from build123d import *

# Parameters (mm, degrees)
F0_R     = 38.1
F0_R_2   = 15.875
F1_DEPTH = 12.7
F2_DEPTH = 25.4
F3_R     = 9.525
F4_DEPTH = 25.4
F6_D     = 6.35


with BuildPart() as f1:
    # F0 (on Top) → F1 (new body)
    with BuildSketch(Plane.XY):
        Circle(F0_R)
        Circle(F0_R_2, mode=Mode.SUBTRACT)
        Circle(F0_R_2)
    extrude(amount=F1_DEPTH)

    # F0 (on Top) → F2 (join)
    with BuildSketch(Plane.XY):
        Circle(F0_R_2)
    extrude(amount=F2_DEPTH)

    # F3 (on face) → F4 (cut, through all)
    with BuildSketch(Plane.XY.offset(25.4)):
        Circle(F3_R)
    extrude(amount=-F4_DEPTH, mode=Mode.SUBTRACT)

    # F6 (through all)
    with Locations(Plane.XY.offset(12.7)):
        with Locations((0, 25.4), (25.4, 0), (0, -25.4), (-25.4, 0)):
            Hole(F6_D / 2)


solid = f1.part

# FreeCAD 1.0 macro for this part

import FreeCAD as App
import Part
import Sketcher
from FreeCAD import Vector
Q = App.Units.Quantity

doc = App.newDocument("Part")
body = doc.addObject("PartDesign::Body", "Body")

# Sketch on XY plane
sketch1 = body.newObject("Sketcher::SketchObject", "Sketch")
sketch1.AttachmentSupport = (doc.getObject("XY_Plane"), [""])
sketch1.MapMode = "FlatFace"
sketch1.addGeometry(Part.Circle(Vector(0, 0, 0), Vector(0, 0, 1), 38.1), False)
sketch1.addConstraint(Sketcher.Constraint("Coincident", 0, 3, -1, 1))
sketch1.addConstraint(Sketcher.Constraint("Diameter", 0, Q("3 in")))
pad1 = body.newObject("PartDesign::Pad", "Pad")
pad1.Profile = sketch1
pad1.Length = Q("0.5 in")

# Sketch on XY plane
sketch2 = body.newObject("Sketcher::SketchObject", "Sketch001")
sketch2.AttachmentSupport = (doc.getObject("XY_Plane"), [""])
sketch2.MapMode = "FlatFace"
sketch2.addGeometry(Part.Circle(Vector(0, 0, 0), Vector(0, 0, 1), 15.875), False)
sketch2.addConstraint(Sketcher.Constraint("Coincident", 0, 3, -1, 1))
sketch2.addConstraint(Sketcher.Constraint("Diameter", 0, Q("1.25 in")))
pad2 = body.newObject("PartDesign::Pad", "Pad001")
pad2.Profile = sketch2
pad2.Length = Q("1 in")

# Sketch on XY plane
sketch3 = body.newObject("Sketcher::SketchObject", "Sketch002")
sketch3.AttachmentSupport = (doc.getObject("XY_Plane"), [""])
sketch3.MapMode = "FlatFace"
sketch3.AttachmentOffset = App.Placement(Vector(0, 0, 1 * 25.4), App.Rotation())
sketch3.addGeometry(Part.Circle(Vector(0, 0, 0), Vector(0, 0, 1), 9.525), False)
sketch3.addConstraint(Sketcher.Constraint("Coincident", 0, 3, -1, 1))
sketch3.addConstraint(Sketcher.Constraint("Diameter", 0, Q("0.75 in")))
pocket1 = body.newObject("PartDesign::Pocket", "Pocket")
pocket1.Profile = sketch3
pocket1.Type = "ThroughAll"

# Sketch on XY plane
sketch4 = body.newObject("Sketcher::SketchObject", "Sketch003")
sketch4.AttachmentSupport = (doc.getObject("XY_Plane"), [""])
sketch4.MapMode = "FlatFace"
sketch4.AttachmentOffset = App.Placement(Vector(0, 0, 0.5 * 25.4), App.Rotation())
sketch4.addGeometry(Part.Circle(Vector(0, 25.4, 0), Vector(0, 0, 1), 3.175), False)
sketch4.addGeometry(Part.Circle(Vector(25.4, 0, 0), Vector(0, 0, 1), 3.175), False)
sketch4.addGeometry(Part.Circle(Vector(0, -25.4, 0), Vector(0, 0, 1), 3.175), False)
sketch4.addGeometry(Part.Circle(Vector(-25.4, 0, 0), Vector(0, 0, 1), 3.175), False)
sketch4.addConstraint(Sketcher.Constraint("Equal", 0, 1))
sketch4.addConstraint(Sketcher.Constraint("Equal", 1, 2))
sketch4.addConstraint(Sketcher.Constraint("Equal", 2, 3))
sketch4.addConstraint(Sketcher.Constraint("Symmetric", 0, 3, 2, 3, -1, 1))
sketch4.addConstraint(Sketcher.Constraint("Symmetric", 1, 3, 3, 3, -1, 1))
sketch4.addConstraint(Sketcher.Constraint("PointOnObject", 0, 3, -2))
sketch4.addConstraint(Sketcher.Constraint("PointOnObject", 1, 3, -1))
sketch4.addConstraint(Sketcher.Constraint("Diameter", 0, Q("0.25 in")))
sketch4.addConstraint(Sketcher.Constraint("DistanceY", -1, 1, 0, 3, Q("1 in")))
sketch4.addConstraint(Sketcher.Constraint("DistanceX", -1, 1, 1, 3, Q("1 in")))
doc.recompute()
hole = body.newObject("PartDesign::Hole", "Hole")
hole.Profile = sketch4
hole.ThreadType = "None"
hole.Diameter = Q("0.25 in")
hole.DepthType = "ThroughAll"

doc.recompute()
